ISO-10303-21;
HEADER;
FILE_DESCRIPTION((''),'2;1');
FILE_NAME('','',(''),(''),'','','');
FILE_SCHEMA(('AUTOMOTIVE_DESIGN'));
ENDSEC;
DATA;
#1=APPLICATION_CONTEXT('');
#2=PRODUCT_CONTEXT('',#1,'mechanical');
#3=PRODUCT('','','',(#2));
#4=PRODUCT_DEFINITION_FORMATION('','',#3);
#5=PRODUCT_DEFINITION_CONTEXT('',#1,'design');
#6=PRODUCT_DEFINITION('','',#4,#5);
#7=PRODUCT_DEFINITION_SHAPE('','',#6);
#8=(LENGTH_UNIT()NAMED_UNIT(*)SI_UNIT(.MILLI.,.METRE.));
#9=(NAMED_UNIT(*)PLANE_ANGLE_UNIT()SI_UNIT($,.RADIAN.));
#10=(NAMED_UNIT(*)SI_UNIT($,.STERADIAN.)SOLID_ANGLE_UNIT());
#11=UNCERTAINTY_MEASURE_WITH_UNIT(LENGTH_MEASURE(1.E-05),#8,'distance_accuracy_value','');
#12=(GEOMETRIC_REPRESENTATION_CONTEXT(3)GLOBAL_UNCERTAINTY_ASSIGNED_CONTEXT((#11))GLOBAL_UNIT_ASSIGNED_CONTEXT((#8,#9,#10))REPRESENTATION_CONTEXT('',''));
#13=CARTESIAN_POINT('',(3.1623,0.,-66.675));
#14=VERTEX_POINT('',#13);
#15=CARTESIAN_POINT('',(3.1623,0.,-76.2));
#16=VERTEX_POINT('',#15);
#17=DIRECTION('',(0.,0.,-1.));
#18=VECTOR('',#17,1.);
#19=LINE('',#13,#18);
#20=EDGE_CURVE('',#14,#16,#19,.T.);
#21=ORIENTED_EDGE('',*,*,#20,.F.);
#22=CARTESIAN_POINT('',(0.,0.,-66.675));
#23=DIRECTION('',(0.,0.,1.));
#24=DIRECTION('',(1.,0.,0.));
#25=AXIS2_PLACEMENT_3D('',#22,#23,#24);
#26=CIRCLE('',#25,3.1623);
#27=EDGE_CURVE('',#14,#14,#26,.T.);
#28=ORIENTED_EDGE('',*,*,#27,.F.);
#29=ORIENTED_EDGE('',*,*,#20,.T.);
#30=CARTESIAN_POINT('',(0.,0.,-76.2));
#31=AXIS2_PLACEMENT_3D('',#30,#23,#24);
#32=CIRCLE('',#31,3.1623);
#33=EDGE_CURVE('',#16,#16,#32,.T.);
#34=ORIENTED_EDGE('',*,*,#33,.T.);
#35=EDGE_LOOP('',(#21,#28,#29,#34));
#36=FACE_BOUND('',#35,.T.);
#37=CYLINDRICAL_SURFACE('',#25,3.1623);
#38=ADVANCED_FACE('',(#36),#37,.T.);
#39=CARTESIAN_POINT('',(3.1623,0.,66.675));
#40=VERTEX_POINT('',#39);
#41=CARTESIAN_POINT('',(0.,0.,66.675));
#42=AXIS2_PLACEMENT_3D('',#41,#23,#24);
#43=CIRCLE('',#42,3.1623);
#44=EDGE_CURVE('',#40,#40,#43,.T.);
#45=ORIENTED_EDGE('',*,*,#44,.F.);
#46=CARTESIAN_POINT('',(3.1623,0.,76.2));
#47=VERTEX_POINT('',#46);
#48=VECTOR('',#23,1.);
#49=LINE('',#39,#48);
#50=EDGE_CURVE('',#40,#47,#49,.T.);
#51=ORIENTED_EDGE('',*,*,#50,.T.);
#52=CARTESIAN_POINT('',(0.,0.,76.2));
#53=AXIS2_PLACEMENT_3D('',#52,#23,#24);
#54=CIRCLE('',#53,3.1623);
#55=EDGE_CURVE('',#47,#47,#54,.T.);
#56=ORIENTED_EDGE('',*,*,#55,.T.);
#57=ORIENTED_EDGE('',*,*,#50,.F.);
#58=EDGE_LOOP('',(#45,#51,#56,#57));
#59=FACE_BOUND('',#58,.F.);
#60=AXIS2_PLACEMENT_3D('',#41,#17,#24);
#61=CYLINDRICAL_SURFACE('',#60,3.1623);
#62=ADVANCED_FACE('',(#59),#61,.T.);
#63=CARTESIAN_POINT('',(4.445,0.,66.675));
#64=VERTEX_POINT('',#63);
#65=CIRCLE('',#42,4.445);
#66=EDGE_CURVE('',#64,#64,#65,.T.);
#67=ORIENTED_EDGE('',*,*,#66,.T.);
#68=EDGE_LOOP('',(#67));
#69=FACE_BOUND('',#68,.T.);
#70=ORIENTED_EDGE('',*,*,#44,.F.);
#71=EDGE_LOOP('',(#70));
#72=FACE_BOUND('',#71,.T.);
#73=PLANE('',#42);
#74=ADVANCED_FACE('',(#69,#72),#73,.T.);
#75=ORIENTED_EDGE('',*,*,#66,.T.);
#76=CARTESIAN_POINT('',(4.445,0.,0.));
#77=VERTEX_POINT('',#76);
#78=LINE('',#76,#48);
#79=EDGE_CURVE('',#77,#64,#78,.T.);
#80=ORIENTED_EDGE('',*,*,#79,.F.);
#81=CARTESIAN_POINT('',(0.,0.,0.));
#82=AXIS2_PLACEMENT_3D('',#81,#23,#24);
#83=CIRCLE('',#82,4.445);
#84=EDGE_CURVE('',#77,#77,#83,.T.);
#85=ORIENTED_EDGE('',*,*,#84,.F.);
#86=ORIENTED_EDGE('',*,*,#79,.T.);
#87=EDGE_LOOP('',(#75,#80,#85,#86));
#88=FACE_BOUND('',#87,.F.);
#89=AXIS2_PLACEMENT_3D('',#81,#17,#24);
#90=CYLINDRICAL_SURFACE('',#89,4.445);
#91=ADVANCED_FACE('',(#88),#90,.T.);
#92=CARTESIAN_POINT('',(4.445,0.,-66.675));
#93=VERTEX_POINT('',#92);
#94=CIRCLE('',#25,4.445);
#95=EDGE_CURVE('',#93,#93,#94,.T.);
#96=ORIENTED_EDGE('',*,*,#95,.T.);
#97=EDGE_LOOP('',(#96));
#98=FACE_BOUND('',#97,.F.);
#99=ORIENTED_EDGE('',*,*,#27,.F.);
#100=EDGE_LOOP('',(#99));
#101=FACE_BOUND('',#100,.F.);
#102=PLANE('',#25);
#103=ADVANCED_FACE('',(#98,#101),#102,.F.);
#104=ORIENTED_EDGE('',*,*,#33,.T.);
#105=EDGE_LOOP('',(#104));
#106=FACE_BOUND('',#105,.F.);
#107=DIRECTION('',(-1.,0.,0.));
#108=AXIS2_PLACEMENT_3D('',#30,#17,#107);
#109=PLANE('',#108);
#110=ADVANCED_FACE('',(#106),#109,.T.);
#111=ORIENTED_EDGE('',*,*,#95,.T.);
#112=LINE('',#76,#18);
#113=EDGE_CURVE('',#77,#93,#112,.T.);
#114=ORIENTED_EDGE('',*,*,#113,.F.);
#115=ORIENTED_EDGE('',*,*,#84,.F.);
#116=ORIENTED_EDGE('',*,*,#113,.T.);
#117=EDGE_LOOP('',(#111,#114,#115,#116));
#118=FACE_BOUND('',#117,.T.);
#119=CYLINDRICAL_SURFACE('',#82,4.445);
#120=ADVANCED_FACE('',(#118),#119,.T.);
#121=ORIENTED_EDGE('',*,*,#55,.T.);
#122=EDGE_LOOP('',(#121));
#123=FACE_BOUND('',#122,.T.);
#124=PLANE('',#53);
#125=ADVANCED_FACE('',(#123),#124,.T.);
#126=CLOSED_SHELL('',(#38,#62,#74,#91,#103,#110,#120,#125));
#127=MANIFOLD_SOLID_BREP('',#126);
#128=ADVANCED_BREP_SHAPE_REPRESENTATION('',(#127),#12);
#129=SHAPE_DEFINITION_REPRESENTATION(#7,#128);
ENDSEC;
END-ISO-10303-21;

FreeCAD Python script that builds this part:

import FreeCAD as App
import Part
import Sketcher
Q = App.Units.Quantity

doc = App.newDocument("Part")
body = doc.addObject("PartDesign::Body", "Body")

# Sketch on XY plane
sketch1 = body.newObject("Sketcher::SketchObject", "Sketch")
sketch1.AttachmentSupport = (doc.getObject("XY_Plane"), [""])
sketch1.MapMode = "FlatFace"
sketch1.addGeometry(Part.Circle(App.Vector(0, 0, 0), App.Vector(0, 0, 1), 4.4), False)
sketch1.addConstraint(Sketcher.Constraint("Coincident", 0, 3, -1, 1))
sketch1.addConstraint(Sketcher.Constraint("Diameter", 0, Q("0.35 in")))
pad1 = body.newObject("PartDesign::Pad", "Pad")
pad1.Profile = sketch1
pad1.Length = Q("5.25 in")
pad1.Midplane = True

# Sketch on XY plane
sketch2 = body.newObject("Sketcher::SketchObject", "Sketch001")
sketch2.AttachmentSupport = (doc.getObject("XY_Plane"), [""])
sketch2.MapMode = "FlatFace"
sketch2.AttachmentOffset = App.Placement(App.Vector(0, 0, 2.625 * 25.4), App.Rotation())
sketch2.addGeometry(Part.Circle(App.Vector(0, 0, 0), App.Vector(0, 0, 1), 3.2), False)
sketch2.addConstraint(Sketcher.Constraint("Coincident", 0, 3, -1, 1))
sketch2.addConstraint(Sketcher.Constraint("Diameter", 0, Q("0.249 in")))
pad2 = body.newObject("PartDesign::Pad", "Pad001")
pad2.Profile = sketch2
pad2.Length = Q("0.375 in")
doc.recompute()

mirrored = body.newObject("PartDesign::Mirrored", "Mirrored")
mirrored.Originals = [pad2]
mirrored.MirrorPlane = (doc.getObject("XY_Plane"), [""])
body.Tip = mirrored

doc.recompute()
